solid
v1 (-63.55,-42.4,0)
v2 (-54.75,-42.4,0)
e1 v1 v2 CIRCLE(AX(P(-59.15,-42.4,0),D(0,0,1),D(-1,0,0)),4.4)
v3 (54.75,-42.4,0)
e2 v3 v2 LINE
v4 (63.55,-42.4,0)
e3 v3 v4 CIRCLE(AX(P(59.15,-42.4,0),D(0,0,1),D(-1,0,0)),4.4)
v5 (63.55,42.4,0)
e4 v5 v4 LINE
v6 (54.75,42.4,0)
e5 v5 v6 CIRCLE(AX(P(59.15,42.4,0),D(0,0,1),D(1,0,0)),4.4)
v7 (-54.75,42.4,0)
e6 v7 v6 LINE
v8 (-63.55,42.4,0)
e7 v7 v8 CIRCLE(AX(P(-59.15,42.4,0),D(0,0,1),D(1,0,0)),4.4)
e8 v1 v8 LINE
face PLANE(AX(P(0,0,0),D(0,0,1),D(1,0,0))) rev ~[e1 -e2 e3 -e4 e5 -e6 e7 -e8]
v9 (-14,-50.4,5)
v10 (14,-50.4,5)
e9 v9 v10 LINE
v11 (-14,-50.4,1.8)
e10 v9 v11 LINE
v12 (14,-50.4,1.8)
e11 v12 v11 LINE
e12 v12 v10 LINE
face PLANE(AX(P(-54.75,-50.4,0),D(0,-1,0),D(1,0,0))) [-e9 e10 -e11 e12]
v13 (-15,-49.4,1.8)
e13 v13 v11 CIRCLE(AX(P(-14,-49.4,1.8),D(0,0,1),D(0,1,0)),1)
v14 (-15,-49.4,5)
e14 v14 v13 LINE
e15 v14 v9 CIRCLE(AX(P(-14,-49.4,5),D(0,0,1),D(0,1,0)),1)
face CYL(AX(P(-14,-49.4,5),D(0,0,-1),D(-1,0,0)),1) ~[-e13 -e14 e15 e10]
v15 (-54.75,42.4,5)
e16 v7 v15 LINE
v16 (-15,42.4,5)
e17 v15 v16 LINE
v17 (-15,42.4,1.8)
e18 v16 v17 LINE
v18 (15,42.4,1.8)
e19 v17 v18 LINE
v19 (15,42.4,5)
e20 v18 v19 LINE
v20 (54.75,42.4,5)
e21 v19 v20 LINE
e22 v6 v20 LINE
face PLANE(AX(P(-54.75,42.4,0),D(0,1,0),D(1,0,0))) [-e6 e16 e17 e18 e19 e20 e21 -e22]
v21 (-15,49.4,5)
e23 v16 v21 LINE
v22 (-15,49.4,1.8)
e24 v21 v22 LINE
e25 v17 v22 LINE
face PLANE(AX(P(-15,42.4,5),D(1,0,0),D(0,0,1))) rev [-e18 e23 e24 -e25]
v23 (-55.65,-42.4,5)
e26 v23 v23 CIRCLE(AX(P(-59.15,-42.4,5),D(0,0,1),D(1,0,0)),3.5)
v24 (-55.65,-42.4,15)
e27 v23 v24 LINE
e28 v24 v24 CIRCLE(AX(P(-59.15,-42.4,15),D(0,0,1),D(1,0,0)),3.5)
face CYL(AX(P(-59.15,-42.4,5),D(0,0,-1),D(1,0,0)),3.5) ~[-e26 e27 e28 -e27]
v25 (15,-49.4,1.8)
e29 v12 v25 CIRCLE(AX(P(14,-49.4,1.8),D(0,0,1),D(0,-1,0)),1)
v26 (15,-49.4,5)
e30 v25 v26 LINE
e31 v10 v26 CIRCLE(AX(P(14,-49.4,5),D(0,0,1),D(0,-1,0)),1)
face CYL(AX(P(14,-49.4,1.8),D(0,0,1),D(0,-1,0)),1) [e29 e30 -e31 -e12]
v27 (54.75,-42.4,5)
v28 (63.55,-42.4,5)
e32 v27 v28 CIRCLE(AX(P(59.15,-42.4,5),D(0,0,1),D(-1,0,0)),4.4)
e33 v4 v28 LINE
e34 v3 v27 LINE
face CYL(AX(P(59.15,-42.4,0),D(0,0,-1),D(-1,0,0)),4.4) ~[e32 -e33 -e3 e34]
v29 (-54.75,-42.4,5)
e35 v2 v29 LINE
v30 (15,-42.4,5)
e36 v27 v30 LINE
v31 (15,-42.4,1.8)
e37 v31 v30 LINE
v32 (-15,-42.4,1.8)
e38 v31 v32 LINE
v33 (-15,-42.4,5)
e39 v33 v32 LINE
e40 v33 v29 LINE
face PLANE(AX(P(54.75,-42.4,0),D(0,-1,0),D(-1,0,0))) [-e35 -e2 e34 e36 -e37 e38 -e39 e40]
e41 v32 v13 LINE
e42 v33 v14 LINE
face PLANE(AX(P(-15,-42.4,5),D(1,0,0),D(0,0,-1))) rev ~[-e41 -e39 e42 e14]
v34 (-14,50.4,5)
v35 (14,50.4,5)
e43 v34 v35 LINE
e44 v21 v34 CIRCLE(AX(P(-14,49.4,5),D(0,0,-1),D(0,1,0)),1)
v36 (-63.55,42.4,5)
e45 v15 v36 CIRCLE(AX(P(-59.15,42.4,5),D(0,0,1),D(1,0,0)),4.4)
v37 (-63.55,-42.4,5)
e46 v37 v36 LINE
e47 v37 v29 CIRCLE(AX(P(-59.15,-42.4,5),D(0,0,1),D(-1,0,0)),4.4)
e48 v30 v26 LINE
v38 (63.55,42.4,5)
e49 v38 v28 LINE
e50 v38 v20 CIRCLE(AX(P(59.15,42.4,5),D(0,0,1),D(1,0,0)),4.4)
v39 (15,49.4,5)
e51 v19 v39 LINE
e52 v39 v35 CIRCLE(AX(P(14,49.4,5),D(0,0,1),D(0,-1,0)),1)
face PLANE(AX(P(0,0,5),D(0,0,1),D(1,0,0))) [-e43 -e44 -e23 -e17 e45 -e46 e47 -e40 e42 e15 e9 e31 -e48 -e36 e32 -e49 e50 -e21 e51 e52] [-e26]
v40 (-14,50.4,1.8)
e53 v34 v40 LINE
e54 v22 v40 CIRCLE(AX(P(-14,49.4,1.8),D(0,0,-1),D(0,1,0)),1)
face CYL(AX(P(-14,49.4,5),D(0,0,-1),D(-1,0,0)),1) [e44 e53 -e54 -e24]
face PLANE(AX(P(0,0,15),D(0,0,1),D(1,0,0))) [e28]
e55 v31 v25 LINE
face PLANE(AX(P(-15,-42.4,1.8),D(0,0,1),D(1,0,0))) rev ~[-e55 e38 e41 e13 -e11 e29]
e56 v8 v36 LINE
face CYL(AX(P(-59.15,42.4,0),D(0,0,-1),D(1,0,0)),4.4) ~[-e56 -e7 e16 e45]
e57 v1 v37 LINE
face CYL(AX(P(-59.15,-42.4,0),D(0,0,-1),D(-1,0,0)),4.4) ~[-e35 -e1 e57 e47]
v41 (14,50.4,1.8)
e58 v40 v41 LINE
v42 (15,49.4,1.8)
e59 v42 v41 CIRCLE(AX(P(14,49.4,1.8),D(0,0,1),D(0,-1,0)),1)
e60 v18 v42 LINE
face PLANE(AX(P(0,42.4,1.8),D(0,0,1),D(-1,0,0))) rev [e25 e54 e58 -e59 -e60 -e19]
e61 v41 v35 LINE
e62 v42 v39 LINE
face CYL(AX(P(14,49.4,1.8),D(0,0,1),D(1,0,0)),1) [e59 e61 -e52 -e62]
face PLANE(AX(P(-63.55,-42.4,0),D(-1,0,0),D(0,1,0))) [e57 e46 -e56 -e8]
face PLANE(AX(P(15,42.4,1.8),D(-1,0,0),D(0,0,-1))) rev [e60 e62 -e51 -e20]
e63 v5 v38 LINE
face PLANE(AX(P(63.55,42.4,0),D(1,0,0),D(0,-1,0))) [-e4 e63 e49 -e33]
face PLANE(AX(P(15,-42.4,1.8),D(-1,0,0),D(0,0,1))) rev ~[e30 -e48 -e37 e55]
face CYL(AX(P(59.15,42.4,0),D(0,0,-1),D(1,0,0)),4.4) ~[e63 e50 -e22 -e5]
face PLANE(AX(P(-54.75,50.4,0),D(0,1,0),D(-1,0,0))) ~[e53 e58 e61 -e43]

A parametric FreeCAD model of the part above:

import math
import FreeCAD as App
import Part
import Sketcher
Q = App.Units.Quantity


def edges_at(feature, points):
    """Names of the edges that pass closest to the given points."""
    edges = feature.Shape.Edges
    near = lambda p: min(range(len(edges)), key=lambda i: edges[i].distToShape(Part.Vertex(*p))[0])
    return sorted({f"Edge{near(p) + 1}" for p in points})


def add_polygon(sketch, points):
    """Adds a closed chain of lines whose ends are joined by coincident constraints."""
    first, n = sketch.GeometryCount, len(points)
    for a, b in zip(points, points[1:] + points[:1]):
        sketch.addGeometry(Part.LineSegment(App.Vector(*a, 0), App.Vector(*b, 0)), False)
    for i in range(n):
        sketch.addConstraint(Sketcher.Constraint("Coincident", first + i, 2, first + (i + 1) % n, 1))

doc = App.newDocument("Part")
body = doc.addObject("PartDesign::Body", "Body")

sketch1 = doc.addObject("Sketcher::SketchObject", "Sketch")
body.addObject(sketch1)
sketch1.AttachmentSupport = (doc.XY_Plane, [""])
sketch1.MapMode = "FlatFace"
sketch1.addGeometry(Part.LineSegment(App.Vector(54.8, 42.4, 0), App.Vector(-54.8, 42.4, 0)), False)
sketch1.addGeometry(Part.ArcOfCircle(Part.Circle(App.Vector(-59.1, 42.4, 0), App.Vector(0, 0, 1), 4.4), math.radians(0), math.radians(180)), False)
sketch1.addGeometry(Part.LineSegment(App.Vector(-63.5, 42.4, 0), App.Vector(-63.5, -42.4, 0)), False)
sketch1.addGeometry(Part.ArcOfCircle(Part.Circle(App.Vector(-59.1, -42.4, 0), App.Vector(0, 0, 1), 4.4), math.radians(180), math.radians(360)), False)
sketch1.addGeometry(Part.LineSegment(App.Vector(-54.8, -42.4, 0), App.Vector(54.8, -42.4, 0)), False)
sketch1.addGeometry(Part.ArcOfCircle(Part.Circle(App.Vector(59.1, -42.4, 0), App.Vector(0, 0, 1), 4.4), math.radians(180), math.radians(360)), False)
sketch1.addGeometry(Part.LineSegment(App.Vector(63.5, -42.4, 0), App.Vector(63.5, 42.4, 0)), False)
sketch1.addGeometry(Part.ArcOfCircle(Part.Circle(App.Vector(59.1, 42.4, 0), App.Vector(0, 0, 1), 4.4), math.radians(0), math.radians(180)), False)
sketch1.addConstraint(Sketcher.Constraint("Coincident", 0, 2, 1, 1))
sketch1.addConstraint(Sketcher.Constraint("Tangent", 1, 2, 2, 1))
sketch1.addConstraint(Sketcher.Constraint("Tangent", 2, 2, 3, 1))
sketch1.addConstraint(Sketcher.Constraint("Coincident", 3, 2, 4, 1))
sketch1.addConstraint(Sketcher.Constraint("Coincident", 4, 2, 5, 1))
sketch1.addConstraint(Sketcher.Constraint("Tangent", 5, 2, 6, 1))
sketch1.addConstraint(Sketcher.Constraint("Tangent", 6, 2, 7, 1))
sketch1.addConstraint(Sketcher.Constraint("Coincident", 7, 2, 0, 1))
sketch1.addConstraint(Sketcher.Constraint("Horizontal", 0))
sketch1.addConstraint(Sketcher.Constraint("Vertical", 2))
sketch1.addConstraint(Sketcher.Constraint("Horizontal", 4))
sketch1.addConstraint(Sketcher.Constraint("Vertical", 6))
sketch1.addConstraint(Sketcher.Constraint("Equal", 1, 3))
sketch1.addConstraint(Sketcher.Constraint("Equal", 3, 5))
sketch1.addConstraint(Sketcher.Constraint("Equal", 5, 7))
sketch1.addConstraint(Sketcher.Constraint("Symmetric", 1, 3, 5, 3, -1, 1))
sketch1.addConstraint(Sketcher.Constraint("Horizontal", 3, 3, 5, 3))
sketch1.addConstraint(Sketcher.Constraint("Horizontal", 1, 3, 7, 3))
sketch1.addConstraint(Sketcher.Constraint("Horizontal", 7, 3, 0, 2))
sketch1.addConstraint(Sketcher.Constraint("Horizontal", 2, 2, 3, 2))
sketch1.addConstraint(Sketcher.Constraint("Radius", 1, Q("4.4 mm")))
sketch1.addConstraint(Sketcher.Constraint("DistanceY", 2, 2, 2, 1, Q("84.8 mm")))
sketch1.addConstraint(Sketcher.Constraint("DistanceX", 0, 2, 0, 1, Q("109.5 mm")))
pad1 = doc.addObject("PartDesign::Pad", "Pad")
body.addObject(pad1)
pad1.Profile = sketch1
pad1.Length = 5

sketch2 = doc.addObject("Sketcher::SketchObject", "Sketch001")
body.addObject(sketch2)
sketch2.AttachmentSupport = (doc.XY_Plane, [""])
sketch2.MapMode = "FlatFace"
sketch2.AttachmentOffset = App.Placement(App.Vector(0, 0, 5), App.Rotation())
sketch2.addGeometry(Part.Circle(App.Vector(-59.1, -42.4, 0), App.Vector(0, 0, 1), 3.5), False)
sketch2.addConstraint(Sketcher.Constraint("Diameter", 0, Q("7 mm")))
sketch2.addConstraint(Sketcher.Constraint("DistanceY", 0, 3, -1, 1, Q("42.4 mm")))
sketch2.addConstraint(Sketcher.Constraint("DistanceX", 0, 3, -1, 1, Q("59.15 mm")))
pad2 = doc.addObject("PartDesign::Pad", "Pad001")
body.addObject(pad2)
pad2.Profile = sketch2
pad2.Length = 10

sketch3 = doc.addObject("Sketcher::SketchObject", "Sketch002")
body.addObject(sketch3)
sketch3.AttachmentSupport = (doc.XZ_Plane, [""])
sketch3.MapMode = "FlatFace"
sketch3.AttachmentOffset = App.Placement(App.Vector(0, 0, 42.4), App.Rotation())
add_polygon(sketch3, [(15, 5), (-15, 5), (-15, 1.8), (15, 1.8)])
sketch3.addConstraint(Sketcher.Constraint("Horizontal", 0))
sketch3.addConstraint(Sketcher.Constraint("Vertical", 1))
sketch3.addConstraint(Sketcher.Constraint("Horizontal", 2))
sketch3.addConstraint(Sketcher.Constraint("Vertical", 3))
sketch3.addConstraint(Sketcher.Constraint("DistanceX", 0, 2, -1, 1, Q("15 mm")))
sketch3.addConstraint(Sketcher.Constraint("DistanceX", -1, 1, 2, 2, Q("15 mm")))
sketch3.addConstraint(Sketcher.Constraint("DistanceY", -1, 1, 1, 2, Q("1.8 mm")))
sketch3.addConstraint(Sketcher.Constraint("DistanceY", 1, 2, 1, 1, Q("3.2 mm")))
pad3 = doc.addObject("PartDesign::Pad", "Pad002")
body.addObject(pad3)
pad3.Profile = sketch3
pad3.Length = 8
doc.recompute()

mirrored = doc.addObject("PartDesign::Mirrored", "Mirrored")
body.addObject(mirrored)
mirrored.Originals = [pad3]
mirrored.MirrorPlane = (doc.XZ_Plane, [""])
body.Tip = mirrored
doc.recompute()

fillet = doc.addObject("PartDesign::Fillet", "Fillet")
body.addObject(fillet)
fillet.Base = (mirrored, edges_at(mirrored, [
    (-15, -50.4, 3.4),
    (15, -50.4, 3.4),
    (15, 50.4, 3.4),
    (-15, 50.4, 3.4),
]))
fillet.Radius = 1

doc.recompute()
